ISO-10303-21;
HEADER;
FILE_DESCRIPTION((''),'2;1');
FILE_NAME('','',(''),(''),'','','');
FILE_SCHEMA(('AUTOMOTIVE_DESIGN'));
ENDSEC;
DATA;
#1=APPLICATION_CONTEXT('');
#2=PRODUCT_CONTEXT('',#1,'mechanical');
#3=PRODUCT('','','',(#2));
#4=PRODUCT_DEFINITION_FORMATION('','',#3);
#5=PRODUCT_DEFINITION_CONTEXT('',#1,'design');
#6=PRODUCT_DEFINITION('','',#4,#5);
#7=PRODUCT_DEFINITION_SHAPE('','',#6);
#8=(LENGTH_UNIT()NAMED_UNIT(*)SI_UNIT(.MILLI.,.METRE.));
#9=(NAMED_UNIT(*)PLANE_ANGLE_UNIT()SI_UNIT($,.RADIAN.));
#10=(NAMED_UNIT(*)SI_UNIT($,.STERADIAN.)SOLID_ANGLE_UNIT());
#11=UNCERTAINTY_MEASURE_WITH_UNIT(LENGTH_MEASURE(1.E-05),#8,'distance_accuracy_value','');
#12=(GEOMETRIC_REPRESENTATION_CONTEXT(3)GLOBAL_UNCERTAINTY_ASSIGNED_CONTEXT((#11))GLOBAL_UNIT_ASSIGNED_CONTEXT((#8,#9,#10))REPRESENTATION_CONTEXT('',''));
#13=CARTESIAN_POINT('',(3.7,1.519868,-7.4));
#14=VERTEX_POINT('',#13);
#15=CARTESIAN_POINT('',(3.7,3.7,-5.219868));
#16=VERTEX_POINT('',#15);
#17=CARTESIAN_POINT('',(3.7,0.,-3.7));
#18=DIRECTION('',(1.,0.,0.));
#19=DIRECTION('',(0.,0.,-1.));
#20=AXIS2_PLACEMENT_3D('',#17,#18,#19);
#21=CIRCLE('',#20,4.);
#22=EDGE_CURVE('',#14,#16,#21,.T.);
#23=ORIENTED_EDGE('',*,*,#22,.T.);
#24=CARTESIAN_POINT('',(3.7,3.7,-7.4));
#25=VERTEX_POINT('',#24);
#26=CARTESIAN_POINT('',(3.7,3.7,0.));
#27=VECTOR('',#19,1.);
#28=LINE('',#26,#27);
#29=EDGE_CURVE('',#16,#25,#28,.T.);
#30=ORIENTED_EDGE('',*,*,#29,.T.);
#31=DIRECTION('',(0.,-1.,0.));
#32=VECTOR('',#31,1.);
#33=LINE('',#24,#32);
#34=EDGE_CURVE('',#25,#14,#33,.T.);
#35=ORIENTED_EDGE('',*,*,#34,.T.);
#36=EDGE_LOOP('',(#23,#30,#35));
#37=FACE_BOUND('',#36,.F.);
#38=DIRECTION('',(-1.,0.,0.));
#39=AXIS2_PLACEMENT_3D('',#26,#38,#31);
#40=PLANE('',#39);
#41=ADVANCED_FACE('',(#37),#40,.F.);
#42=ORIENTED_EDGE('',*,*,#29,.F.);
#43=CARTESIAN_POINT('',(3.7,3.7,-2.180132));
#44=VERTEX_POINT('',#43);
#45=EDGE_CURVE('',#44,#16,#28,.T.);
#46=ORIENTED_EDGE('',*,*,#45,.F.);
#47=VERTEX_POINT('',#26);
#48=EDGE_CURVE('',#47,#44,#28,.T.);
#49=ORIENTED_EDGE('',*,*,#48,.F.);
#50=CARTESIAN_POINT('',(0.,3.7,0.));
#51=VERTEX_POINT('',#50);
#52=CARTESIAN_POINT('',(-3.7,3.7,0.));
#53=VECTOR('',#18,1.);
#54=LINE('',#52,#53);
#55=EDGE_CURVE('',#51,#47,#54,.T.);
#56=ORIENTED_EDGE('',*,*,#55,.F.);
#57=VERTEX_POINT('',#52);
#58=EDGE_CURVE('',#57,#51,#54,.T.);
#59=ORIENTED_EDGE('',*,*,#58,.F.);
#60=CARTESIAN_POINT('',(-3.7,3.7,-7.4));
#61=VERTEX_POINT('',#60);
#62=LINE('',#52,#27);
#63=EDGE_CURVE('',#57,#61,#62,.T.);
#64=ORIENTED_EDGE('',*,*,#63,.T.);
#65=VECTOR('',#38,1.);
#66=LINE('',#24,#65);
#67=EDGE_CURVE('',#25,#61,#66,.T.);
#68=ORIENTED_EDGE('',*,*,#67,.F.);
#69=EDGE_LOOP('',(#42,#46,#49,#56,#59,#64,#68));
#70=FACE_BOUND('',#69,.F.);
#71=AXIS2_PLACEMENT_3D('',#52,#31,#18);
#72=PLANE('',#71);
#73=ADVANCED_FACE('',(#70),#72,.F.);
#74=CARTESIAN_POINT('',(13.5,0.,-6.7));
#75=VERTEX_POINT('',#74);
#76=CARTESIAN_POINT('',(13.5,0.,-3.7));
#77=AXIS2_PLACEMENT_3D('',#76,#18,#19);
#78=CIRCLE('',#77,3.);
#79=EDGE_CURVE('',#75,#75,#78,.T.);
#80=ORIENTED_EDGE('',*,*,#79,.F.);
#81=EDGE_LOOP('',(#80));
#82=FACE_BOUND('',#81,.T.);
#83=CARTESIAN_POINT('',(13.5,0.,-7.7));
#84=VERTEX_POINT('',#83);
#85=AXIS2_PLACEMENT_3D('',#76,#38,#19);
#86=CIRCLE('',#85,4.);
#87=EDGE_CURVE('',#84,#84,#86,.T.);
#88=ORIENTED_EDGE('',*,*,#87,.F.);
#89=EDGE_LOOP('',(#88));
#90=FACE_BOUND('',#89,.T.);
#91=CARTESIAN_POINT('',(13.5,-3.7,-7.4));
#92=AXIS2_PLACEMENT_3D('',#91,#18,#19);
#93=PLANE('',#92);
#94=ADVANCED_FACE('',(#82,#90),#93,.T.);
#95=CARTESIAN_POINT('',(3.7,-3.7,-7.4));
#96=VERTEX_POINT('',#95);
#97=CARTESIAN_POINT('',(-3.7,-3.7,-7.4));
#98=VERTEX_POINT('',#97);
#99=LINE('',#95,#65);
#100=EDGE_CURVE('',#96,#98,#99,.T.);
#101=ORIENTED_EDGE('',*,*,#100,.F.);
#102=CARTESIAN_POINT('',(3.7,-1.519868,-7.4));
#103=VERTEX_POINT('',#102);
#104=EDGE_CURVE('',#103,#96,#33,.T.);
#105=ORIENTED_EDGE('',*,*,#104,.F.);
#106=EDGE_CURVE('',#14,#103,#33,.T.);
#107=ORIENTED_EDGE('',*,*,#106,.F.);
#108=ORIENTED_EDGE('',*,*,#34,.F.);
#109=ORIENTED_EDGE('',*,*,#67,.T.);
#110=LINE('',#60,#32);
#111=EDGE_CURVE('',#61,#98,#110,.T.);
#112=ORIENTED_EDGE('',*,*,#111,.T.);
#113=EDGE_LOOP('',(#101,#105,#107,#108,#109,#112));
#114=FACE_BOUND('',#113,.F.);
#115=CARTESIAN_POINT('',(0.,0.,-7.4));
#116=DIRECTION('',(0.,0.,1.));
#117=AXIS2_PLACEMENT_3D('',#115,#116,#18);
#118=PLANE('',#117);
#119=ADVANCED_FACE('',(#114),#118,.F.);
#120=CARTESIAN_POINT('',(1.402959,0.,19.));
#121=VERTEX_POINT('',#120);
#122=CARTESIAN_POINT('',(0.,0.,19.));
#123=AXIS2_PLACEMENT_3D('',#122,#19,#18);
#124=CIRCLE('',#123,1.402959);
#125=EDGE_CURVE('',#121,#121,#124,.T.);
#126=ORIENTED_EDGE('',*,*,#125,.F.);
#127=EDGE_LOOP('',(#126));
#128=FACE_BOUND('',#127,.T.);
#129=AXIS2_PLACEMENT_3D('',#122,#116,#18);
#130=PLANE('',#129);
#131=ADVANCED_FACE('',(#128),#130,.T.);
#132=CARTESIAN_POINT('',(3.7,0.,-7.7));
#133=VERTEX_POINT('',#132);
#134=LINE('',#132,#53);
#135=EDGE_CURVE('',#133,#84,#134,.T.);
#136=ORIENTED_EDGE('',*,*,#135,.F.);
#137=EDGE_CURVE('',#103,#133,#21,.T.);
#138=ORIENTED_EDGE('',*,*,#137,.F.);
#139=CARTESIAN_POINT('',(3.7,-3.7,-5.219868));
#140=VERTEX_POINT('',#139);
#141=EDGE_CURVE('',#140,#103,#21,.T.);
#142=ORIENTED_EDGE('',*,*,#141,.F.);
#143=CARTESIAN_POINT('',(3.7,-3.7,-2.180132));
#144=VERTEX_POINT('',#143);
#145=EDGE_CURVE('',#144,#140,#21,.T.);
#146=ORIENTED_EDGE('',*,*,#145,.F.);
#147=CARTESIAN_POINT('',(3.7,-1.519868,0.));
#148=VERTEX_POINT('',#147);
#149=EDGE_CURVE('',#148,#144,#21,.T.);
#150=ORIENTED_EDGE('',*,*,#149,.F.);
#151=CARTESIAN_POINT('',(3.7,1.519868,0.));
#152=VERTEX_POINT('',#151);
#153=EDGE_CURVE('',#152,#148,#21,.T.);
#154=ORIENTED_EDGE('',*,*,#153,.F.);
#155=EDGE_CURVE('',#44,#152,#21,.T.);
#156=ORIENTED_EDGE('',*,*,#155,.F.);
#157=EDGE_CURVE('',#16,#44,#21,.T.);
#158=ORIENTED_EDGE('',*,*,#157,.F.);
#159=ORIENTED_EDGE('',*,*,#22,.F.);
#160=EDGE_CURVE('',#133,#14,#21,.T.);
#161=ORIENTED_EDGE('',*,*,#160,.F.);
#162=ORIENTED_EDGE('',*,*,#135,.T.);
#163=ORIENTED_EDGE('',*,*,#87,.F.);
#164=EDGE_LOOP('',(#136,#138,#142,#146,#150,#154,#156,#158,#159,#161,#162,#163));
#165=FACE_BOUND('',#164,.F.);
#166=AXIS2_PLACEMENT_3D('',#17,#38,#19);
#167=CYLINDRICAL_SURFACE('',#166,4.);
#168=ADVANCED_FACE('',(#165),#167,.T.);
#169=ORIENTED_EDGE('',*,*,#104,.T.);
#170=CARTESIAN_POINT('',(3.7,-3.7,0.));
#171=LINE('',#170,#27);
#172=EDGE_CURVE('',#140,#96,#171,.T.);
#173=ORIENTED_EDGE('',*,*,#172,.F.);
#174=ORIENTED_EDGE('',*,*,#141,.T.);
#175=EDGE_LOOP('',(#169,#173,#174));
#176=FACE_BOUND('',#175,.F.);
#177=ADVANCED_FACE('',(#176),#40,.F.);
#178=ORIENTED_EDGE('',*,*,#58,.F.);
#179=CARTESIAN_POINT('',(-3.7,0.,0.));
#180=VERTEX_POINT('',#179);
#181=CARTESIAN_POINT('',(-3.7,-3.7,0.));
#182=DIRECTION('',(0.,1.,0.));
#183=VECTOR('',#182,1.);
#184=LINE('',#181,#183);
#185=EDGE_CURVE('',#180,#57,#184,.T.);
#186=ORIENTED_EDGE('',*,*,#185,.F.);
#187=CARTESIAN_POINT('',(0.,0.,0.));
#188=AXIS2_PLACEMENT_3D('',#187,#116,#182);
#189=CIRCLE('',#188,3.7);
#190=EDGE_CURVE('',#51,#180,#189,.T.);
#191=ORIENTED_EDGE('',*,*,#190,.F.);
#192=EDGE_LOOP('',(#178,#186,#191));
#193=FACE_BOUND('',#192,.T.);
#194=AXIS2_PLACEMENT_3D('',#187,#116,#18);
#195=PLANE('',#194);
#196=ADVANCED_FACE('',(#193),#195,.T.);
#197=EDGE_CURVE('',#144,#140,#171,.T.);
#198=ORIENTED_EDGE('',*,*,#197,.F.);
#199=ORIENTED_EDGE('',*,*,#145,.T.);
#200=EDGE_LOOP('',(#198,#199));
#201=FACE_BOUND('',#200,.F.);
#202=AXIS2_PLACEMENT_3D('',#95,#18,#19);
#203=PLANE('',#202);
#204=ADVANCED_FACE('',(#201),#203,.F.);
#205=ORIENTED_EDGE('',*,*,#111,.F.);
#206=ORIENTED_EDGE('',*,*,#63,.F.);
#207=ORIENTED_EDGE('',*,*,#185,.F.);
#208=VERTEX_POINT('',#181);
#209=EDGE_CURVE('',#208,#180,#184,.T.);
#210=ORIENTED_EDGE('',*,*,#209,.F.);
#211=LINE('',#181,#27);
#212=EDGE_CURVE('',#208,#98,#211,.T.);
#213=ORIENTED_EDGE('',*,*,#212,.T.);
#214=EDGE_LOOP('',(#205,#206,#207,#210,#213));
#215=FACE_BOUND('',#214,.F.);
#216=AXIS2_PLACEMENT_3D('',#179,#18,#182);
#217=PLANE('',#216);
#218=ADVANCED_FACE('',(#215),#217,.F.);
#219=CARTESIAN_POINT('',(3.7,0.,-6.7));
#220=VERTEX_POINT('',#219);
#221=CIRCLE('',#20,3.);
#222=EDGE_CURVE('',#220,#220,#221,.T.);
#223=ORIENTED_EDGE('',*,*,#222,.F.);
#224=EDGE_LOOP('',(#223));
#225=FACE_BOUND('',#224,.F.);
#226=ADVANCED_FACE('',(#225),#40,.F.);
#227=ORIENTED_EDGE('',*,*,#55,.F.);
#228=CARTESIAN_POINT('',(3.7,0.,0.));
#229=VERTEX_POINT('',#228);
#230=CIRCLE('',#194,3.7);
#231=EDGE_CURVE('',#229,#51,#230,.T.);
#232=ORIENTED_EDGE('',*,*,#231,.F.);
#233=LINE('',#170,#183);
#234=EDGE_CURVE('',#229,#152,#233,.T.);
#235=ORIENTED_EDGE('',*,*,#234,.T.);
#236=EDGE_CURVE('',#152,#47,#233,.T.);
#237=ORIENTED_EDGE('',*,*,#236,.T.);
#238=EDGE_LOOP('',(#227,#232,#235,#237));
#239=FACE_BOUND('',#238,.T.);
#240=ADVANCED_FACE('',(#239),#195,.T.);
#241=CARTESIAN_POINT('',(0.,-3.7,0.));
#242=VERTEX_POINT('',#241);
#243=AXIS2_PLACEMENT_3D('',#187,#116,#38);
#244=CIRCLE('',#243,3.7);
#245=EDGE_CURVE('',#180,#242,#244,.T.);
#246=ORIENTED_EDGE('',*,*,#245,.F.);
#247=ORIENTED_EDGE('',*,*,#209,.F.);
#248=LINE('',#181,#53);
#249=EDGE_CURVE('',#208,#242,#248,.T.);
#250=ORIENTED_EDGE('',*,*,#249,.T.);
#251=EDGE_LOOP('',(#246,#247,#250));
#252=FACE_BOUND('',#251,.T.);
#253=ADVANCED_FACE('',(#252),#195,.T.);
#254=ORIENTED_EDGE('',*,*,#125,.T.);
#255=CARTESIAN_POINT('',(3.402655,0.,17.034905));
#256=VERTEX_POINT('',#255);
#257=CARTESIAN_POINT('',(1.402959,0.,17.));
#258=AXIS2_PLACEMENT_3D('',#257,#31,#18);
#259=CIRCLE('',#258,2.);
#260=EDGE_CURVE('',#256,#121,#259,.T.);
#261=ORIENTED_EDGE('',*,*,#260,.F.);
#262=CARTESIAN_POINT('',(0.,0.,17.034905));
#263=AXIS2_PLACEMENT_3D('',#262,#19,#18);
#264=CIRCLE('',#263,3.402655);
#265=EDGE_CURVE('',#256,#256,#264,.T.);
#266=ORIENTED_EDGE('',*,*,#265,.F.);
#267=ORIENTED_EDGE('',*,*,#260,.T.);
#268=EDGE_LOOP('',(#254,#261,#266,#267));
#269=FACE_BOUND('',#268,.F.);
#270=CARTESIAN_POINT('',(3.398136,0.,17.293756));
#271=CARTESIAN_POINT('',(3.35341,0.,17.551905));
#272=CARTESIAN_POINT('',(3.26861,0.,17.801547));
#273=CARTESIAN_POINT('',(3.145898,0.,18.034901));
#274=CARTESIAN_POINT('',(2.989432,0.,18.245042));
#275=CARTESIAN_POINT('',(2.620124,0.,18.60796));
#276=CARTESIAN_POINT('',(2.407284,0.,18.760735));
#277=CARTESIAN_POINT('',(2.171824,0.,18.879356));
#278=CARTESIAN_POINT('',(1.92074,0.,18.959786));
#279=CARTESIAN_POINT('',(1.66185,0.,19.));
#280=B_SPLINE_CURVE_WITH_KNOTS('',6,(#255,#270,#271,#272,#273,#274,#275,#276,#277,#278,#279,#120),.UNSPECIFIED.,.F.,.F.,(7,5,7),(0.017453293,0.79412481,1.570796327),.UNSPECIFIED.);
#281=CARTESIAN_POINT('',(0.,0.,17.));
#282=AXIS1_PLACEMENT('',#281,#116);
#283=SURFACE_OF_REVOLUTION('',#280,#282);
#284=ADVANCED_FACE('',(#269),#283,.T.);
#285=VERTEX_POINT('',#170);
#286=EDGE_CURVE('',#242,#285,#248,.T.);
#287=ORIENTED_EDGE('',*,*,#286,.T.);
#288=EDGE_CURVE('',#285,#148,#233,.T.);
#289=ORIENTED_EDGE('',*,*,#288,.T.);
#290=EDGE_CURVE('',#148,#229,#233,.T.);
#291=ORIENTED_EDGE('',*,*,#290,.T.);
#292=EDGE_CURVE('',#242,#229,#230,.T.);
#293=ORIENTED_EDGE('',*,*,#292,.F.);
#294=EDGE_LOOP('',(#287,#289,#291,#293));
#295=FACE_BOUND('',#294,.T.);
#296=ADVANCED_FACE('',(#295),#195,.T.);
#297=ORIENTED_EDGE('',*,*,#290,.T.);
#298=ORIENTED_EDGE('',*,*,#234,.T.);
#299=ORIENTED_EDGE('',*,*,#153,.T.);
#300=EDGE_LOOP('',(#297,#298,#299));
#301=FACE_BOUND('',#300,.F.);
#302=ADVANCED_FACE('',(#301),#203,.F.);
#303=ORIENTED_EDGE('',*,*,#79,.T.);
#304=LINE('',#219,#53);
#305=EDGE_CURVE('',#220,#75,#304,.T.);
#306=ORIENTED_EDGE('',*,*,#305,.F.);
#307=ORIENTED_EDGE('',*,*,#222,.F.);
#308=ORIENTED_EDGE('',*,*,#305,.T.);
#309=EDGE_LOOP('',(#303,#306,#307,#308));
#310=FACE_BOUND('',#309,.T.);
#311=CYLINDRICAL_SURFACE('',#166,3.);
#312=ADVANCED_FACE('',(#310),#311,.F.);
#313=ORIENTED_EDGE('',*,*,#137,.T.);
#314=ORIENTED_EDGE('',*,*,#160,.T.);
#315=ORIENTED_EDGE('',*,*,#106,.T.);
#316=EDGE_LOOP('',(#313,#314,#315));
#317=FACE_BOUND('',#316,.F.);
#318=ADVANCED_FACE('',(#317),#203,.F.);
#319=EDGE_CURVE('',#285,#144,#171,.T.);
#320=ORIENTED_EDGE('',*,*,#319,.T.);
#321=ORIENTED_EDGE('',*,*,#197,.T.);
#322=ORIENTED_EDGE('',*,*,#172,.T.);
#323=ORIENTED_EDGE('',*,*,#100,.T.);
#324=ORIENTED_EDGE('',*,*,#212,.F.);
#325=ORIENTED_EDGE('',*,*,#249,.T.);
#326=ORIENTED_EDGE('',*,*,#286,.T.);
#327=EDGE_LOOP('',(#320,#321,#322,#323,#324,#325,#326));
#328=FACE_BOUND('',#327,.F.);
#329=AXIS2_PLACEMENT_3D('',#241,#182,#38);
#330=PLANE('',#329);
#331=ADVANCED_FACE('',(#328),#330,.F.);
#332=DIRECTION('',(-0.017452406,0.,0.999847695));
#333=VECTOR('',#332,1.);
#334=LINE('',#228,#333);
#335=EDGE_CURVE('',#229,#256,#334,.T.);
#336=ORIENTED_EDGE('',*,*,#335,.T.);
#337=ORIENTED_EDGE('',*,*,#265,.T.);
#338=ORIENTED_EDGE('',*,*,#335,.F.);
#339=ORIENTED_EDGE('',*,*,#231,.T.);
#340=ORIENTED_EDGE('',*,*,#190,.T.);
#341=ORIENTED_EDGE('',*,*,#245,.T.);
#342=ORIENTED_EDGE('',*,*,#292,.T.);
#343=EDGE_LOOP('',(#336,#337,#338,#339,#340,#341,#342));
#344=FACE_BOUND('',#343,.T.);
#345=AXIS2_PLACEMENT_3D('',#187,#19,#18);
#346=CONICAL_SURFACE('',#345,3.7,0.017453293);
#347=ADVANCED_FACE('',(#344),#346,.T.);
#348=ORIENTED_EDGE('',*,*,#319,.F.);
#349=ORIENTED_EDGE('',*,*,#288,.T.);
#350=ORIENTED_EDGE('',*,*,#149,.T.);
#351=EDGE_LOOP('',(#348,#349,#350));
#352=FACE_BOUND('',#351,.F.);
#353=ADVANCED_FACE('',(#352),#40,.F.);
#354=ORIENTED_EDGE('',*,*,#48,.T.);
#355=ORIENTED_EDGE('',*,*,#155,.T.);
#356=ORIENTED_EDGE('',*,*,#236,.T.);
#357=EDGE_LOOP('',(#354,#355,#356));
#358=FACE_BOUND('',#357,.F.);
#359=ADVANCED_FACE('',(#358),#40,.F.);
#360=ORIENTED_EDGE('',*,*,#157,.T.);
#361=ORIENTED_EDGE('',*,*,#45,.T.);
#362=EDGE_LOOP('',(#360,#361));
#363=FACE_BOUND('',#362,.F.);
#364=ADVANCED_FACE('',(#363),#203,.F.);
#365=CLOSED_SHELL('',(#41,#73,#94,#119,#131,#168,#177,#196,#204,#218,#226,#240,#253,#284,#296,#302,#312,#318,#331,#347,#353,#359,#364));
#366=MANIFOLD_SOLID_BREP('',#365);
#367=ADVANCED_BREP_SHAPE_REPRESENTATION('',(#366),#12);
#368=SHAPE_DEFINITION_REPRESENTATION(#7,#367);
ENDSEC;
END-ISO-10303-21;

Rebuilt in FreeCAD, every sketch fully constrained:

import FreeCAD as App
import Part
import Sketcher
from FreeCAD import Vector
Q = App.Units.Quantity


def edges_at(feature, points):
    """Names of the edges that pass closest to the given points."""
    edges = feature.Shape.Edges
    near = lambda p: min(range(len(edges)), key=lambda i: edges[i].distToShape(Part.Vertex(*p))[0])
    return sorted({f"Edge{near(p) + 1}" for p in points})


def add_polygon(sketch, points):
    """Adds a closed chain of lines whose ends are joined by coincident constraints."""
    first, n = sketch.GeometryCount, len(points)
    for a, b in zip(points, points[1:] + points[:1]):
        sketch.addGeometry(Part.LineSegment(App.Vector(*a, 0), App.Vector(*b, 0)), False)
    for i in range(n):
        sketch.addConstraint(Sketcher.Constraint("Coincident", first + i, 2, first + (i + 1) % n, 1))

doc = App.newDocument("Part")
params = doc.addObject("Spreadsheet::Sheet", "Params")
for row, (alias, value) in enumerate([
    ("sketch1_width", "7.4 mm"),
    ("pad1_length", "7.4 mm"),
    ("sketch2_diameter", "7.4 mm"),
    ("pad2_length", "19 mm"),
    ("pad2_taper", "-1 deg"),
    ("fillet_radius", "2 mm"),
    ("sketch3_diameter", "8 mm"),
    ("sketch3_diameter2", "6 mm"),
    ("pad3_length", "9.8 mm"),
], start=1):
    params.set(f"A{row}", alias)
    params.set(f"B{row}", "=" + value)
    params.setAlias(f"B{row}", alias)

body = doc.addObject("PartDesign::Body", "Body")

# Sketch on XY plane
sketch1 = body.newObject("Sketcher::SketchObject", "Sketch")
sketch1.AttachmentSupport = (doc.getObject("XY_Plane"), [""])
sketch1.MapMode = "FlatFace"
add_polygon(sketch1, [(-4, 4), (-4, -4), (4, -4), (4, 4)])  # lines 0-3
sketch1.addConstraint([
    Sketcher.Constraint("Vertical", 0),
    Sketcher.Constraint("Horizontal", 1),
    Sketcher.Constraint("Vertical", 2),
    Sketcher.Constraint("Horizontal", 3),
    Sketcher.Constraint("Symmetric", 0, 2, 2, 2, -1, 1),
    Sketcher.Constraint("Equal", 3, 0),
    Sketcher.Constraint("DistanceX", 1, 1, 1, 2, Q("7.4 mm")),
])
sketch1.setExpression("Constraints[10]", "Params.sketch1_width")
pad1 = body.newObject("PartDesign::Pad", "Pad")
pad1.Profile = sketch1
pad1.setExpression("Length", "Params.pad1_length")
pad1.Reversed = True

# Sketch on XY plane
sketch2 = body.newObject("Sketcher::SketchObject", "Sketch001")
sketch2.AttachmentSupport = (doc.getObject("XY_Plane"), [""])
sketch2.MapMode = "FlatFace"
sketch2.addGeometry(Part.Circle(Vector(0, 0, 0), Vector(0, 0, 1), 3.7), False)
sketch2.addConstraint([
    Sketcher.Constraint("Coincident", 0, 3, -1, 1),
    Sketcher.Constraint("Diameter", 0, Q("7.4 mm")),
])
sketch2.setExpression("Constraints[1]", "Params.sketch2_diameter")
pad2 = body.newObject("PartDesign::Pad", "Pad001")
pad2.Profile = sketch2
pad2.setExpression("Length", "Params.pad2_length")
pad2.setExpression("TaperAngle", "Params.pad2_taper")
doc.recompute()

fillet = body.newObject("PartDesign::Fillet", "Fillet")
fillet.Base = (pad2, edges_at(pad2, [(-3.368, 0, 19)]))
fillet.setExpression("Radius", "Params.fillet_radius")

# Sketch on YZ plane
sketch3 = body.newObject("Sketcher::SketchObject", "Sketch002")
sketch3.AttachmentSupport = (doc.getObject("YZ_Plane"), [""])
sketch3.MapMode = "FlatFace"
sketch3.AttachmentOffset = App.Placement(Vector(0, 0, 3.7), App.Rotation())
sketch3.addGeometry([
    Part.Circle(Vector(0, -3.7, 0), Vector(0, 0, 1), 4),
    Part.Circle(Vector(0, -3.7, 0), Vector(0, 0, 1), 3),
], False)
sketch3.addConstraint([
    Sketcher.Constraint("Coincident", 1, 3, 0, 3),
    Sketcher.Constraint("PointOnObject", 0, 3, -2),
    Sketcher.Constraint("Diameter", 0, Q("8 mm")),
    Sketcher.Constraint("Diameter", 1, Q("6 mm")),
    Sketcher.Constraint("DistanceY", 0, 3, -1, 1, Q("3.7 mm")),
])
sketch3.setExpression("Constraints[2]", "Params.sketch3_diameter")
sketch3.setExpression("Constraints[3]", "Params.sketch3_diameter2")
pad3 = body.newObject("PartDesign::Pad", "Pad002")
pad3.Profile = sketch3
pad3.setExpression("Length", "Params.pad3_length")

doc.recompute()
